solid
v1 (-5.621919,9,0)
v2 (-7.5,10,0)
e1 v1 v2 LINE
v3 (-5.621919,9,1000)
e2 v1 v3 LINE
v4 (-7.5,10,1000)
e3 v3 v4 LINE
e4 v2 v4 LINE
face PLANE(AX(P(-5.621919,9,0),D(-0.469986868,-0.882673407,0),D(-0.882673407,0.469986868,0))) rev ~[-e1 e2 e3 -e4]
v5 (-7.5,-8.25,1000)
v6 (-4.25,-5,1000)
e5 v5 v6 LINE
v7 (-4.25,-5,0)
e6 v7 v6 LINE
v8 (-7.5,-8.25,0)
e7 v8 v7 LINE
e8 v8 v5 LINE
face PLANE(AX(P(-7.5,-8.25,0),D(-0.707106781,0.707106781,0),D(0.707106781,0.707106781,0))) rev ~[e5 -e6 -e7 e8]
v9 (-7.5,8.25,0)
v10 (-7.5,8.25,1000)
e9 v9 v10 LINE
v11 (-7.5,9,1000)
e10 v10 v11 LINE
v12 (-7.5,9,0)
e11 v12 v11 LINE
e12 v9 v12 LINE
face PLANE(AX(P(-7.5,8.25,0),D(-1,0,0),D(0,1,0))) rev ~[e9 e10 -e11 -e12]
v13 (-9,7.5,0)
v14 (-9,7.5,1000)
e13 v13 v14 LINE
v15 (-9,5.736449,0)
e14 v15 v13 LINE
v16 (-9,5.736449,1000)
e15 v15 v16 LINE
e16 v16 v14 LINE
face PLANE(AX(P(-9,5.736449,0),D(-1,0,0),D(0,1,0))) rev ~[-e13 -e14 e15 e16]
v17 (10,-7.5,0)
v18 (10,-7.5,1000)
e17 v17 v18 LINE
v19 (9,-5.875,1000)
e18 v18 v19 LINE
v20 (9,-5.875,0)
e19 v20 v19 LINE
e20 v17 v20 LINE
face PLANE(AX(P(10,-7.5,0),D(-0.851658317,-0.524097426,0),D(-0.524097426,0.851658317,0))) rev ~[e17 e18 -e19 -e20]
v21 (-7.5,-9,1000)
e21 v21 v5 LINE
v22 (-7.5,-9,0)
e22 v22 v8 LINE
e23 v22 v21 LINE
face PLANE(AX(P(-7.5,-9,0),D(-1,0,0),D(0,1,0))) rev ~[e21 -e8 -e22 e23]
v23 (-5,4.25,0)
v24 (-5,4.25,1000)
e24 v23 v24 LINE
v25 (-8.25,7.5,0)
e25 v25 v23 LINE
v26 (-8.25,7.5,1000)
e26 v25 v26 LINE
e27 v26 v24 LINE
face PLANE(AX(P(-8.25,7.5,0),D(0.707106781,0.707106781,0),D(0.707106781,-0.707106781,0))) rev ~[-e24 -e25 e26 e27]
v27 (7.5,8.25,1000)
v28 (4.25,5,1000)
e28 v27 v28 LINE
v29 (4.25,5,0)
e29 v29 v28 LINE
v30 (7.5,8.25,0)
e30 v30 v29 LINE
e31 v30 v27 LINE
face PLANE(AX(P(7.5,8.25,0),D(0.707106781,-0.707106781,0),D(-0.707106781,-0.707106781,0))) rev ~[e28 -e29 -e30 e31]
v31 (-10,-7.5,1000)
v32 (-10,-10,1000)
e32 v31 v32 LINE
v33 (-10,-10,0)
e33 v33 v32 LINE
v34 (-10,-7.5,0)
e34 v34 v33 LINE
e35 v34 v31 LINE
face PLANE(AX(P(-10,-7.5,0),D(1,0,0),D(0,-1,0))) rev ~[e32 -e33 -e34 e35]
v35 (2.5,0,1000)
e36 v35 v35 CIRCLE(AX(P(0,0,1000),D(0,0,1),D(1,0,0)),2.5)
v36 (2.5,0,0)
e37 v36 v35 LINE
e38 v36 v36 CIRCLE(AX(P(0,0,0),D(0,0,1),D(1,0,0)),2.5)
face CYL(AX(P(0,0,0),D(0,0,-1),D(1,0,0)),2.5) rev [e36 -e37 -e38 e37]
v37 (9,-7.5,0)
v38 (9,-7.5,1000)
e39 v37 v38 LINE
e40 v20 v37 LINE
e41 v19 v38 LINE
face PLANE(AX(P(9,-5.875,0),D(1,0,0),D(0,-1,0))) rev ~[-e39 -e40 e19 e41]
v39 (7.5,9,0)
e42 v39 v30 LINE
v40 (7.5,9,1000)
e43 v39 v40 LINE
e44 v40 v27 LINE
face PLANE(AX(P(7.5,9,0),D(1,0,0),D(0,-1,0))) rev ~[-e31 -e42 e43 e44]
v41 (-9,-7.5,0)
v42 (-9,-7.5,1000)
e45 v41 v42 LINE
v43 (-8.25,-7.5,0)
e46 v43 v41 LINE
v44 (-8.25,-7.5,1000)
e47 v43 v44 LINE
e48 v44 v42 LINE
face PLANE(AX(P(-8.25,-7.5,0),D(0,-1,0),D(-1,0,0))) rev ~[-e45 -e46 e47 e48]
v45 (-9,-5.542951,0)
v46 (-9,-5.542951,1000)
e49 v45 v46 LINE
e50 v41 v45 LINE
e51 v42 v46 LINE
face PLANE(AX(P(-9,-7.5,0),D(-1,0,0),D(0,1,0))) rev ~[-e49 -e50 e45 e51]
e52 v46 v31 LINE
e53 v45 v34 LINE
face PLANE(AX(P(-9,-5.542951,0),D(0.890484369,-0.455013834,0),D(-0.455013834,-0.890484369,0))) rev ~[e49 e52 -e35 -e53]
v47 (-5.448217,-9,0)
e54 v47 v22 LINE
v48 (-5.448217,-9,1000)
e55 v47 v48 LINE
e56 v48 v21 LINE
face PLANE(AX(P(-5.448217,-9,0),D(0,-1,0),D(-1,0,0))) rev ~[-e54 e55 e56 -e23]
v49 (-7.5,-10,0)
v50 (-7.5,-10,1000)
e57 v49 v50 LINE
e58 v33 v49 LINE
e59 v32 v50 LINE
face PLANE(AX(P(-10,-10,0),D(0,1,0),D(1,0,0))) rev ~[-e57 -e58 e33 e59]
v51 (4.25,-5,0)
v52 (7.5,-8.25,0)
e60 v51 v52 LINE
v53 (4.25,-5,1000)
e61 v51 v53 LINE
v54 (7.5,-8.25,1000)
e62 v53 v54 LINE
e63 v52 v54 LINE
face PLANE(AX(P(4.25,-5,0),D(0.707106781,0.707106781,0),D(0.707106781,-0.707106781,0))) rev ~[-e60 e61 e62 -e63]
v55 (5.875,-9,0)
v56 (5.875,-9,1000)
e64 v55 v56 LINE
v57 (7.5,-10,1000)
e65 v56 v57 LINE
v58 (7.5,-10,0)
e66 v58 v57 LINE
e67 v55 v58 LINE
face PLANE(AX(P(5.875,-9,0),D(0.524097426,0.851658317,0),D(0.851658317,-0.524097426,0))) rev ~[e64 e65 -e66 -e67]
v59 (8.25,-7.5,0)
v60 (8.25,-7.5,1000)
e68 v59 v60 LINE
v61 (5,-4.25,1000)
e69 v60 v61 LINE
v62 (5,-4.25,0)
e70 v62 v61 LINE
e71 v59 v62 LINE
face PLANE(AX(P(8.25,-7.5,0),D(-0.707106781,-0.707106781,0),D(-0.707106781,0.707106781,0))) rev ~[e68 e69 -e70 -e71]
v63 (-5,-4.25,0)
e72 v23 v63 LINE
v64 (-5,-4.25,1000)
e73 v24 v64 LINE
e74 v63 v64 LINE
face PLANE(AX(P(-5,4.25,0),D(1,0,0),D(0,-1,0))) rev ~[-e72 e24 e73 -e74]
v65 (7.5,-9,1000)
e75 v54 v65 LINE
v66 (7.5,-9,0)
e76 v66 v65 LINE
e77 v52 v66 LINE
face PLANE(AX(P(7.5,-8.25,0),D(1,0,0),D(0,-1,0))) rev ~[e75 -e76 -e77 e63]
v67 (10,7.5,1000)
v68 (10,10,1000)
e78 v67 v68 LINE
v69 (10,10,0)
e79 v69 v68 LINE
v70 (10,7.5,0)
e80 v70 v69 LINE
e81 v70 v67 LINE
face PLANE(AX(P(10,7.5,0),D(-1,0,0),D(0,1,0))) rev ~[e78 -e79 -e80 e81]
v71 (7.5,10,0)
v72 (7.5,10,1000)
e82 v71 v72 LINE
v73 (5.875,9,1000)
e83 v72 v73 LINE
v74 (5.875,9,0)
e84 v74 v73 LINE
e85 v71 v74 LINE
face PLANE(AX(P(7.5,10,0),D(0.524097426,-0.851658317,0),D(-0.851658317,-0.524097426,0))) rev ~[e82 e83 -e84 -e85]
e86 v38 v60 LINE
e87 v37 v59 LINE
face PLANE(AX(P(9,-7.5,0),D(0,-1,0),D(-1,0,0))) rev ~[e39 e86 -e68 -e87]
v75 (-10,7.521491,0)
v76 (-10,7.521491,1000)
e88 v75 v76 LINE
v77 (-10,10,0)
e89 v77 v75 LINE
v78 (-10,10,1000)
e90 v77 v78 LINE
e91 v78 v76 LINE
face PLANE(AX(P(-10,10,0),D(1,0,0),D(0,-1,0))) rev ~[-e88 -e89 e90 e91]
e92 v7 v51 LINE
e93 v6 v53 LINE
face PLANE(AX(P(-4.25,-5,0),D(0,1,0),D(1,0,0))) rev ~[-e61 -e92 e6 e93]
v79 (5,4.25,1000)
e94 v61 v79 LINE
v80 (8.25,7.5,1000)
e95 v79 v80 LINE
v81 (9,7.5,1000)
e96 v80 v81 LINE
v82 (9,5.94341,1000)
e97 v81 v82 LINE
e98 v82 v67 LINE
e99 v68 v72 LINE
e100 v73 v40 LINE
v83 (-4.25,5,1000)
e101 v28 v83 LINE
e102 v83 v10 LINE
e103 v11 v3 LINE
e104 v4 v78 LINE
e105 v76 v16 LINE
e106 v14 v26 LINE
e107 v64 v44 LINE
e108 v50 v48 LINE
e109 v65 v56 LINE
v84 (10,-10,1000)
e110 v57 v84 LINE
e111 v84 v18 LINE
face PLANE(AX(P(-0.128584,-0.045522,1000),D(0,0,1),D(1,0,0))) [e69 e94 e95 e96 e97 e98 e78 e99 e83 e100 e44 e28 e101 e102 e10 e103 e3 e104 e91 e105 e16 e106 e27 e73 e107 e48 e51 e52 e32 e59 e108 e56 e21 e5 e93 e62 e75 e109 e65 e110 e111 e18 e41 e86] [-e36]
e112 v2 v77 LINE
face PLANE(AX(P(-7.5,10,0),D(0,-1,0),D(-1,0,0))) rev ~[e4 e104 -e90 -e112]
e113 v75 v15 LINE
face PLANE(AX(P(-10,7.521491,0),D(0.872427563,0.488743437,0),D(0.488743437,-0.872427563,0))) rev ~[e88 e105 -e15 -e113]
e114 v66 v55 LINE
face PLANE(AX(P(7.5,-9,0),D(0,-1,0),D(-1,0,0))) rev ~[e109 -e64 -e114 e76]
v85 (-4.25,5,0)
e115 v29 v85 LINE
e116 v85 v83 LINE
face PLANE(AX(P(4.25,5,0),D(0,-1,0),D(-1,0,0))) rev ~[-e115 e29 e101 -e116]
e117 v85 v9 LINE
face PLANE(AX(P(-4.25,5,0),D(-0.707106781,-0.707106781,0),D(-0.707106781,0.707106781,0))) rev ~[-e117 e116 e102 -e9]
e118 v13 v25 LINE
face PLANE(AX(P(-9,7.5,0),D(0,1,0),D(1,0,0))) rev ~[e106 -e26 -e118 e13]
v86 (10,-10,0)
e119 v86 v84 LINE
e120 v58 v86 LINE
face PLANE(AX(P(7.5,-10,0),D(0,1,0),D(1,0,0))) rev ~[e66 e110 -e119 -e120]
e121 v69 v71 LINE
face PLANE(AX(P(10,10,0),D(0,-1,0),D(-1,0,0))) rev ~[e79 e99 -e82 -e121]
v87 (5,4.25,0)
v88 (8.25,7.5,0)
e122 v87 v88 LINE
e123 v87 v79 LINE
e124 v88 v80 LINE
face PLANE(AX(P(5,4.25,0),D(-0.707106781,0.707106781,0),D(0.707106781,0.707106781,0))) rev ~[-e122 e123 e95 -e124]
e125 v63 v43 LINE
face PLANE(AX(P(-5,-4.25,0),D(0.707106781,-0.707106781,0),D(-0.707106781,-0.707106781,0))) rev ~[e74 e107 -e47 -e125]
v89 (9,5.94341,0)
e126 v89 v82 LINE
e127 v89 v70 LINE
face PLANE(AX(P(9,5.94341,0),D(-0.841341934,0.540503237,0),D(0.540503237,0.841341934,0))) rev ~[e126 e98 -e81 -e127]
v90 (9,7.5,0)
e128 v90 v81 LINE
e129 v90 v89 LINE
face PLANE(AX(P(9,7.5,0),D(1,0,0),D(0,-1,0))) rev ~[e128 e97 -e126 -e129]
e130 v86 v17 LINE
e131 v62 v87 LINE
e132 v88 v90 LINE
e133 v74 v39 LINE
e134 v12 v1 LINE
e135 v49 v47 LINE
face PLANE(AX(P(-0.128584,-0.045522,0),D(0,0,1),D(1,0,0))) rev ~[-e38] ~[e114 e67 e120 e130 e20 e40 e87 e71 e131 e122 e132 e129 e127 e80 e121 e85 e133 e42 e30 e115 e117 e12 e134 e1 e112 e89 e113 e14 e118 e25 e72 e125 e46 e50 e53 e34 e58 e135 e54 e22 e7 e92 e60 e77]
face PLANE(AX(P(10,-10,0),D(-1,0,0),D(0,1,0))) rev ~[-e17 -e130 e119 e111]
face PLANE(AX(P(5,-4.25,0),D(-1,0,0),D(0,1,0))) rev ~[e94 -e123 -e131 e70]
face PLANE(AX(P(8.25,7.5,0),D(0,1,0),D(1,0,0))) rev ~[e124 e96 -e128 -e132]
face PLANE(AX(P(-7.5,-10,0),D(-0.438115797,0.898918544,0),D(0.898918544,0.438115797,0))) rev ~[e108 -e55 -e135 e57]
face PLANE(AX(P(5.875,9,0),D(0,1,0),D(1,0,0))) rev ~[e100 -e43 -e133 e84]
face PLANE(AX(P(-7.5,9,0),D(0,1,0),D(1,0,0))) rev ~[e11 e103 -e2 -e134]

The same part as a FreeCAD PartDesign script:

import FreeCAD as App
import Part
import Sketcher
from FreeCAD import Vector

doc = App.newDocument("Part")
body = doc.addObject("PartDesign::Body", "Body")

# Sketch on XY plane
sketch1 = doc.addObject("Sketcher::SketchObject", "Sketch")
body.addObject(sketch1)
sketch1.AttachmentSupport = (doc.XY_Plane, [""])
sketch1.MapMode = "FlatFace"
sketch1.addGeometry(Part.LineSegment(Vector(7.5, 8.2, 0), Vector(4.2, 5, 0)), False)
sketch1.addGeometry(Part.LineSegment(Vector(4.2, 5, 0), Vector(-4.2, 5, 0)), False)
sketch1.addGeometry(Part.LineSegment(Vector(-4.2, 5, 0), Vector(-7.5, 8.2, 0)), False)
sketch1.addGeometry(Part.LineSegment(Vector(-7.5, 8.2, 0), Vector(-7.5, 9, 0)), False)
sketch1.addGeometry(Part.LineSegment(Vector(-7.5, 9, 0), Vector(-5.6, 9, 0)), False)
sketch1.addGeometry(Part.LineSegment(Vector(-5.6, 9, 0), Vector(-7.5, 10, 0)), False)
sketch1.addGeometry(Part.LineSegment(Vector(-7.5, 10, 0), Vector(-10, 10, 0)), False)
sketch1.addGeometry(Part.LineSegment(Vector(-10, 10, 0), Vector(-10, 7.5, 0)), False)
sketch1.addGeometry(Part.LineSegment(Vector(-10, 7.5, 0), Vector(-9, 5.7, 0)), False)
sketch1.addGeometry(Part.LineSegment(Vector(-9, 5.7, 0), Vector(-9, 7.5, 0)), False)
sketch1.addGeometry(Part.LineSegment(Vector(-9, 7.5, 0), Vector(-8.2, 7.5, 0)), False)
sketch1.addGeometry(Part.LineSegment(Vector(-8.2, 7.5, 0), Vector(-5, 4.2, 0)), False)
sketch1.addGeometry(Part.LineSegment(Vector(-5, 4.2, 0), Vector(-5, -4.2, 0)), False)
sketch1.addGeometry(Part.LineSegment(Vector(-5, -4.2, 0), Vector(-8.2, -7.5, 0)), False)
sketch1.addGeometry(Part.LineSegment(Vector(-8.2, -7.5, 0), Vector(-9, -7.5, 0)), False)
sketch1.addGeometry(Part.LineSegment(Vector(-9, -7.5, 0), Vector(-9, -5.5, 0)), False)
sketch1.addGeometry(Part.LineSegment(Vector(-9, -5.5, 0), Vector(-10, -7.5, 0)), False)
sketch1.addGeometry(Part.LineSegment(Vector(-10, -7.5, 0), Vector(-10, -10, 0)), False)
sketch1.addGeometry(Part.LineSegment(Vector(-10, -10, 0), Vector(-7.5, -10, 0)), False)
sketch1.addGeometry(Part.LineSegment(Vector(-7.5, -10, 0), Vector(-5.4, -9, 0)), False)
sketch1.addGeometry(Part.LineSegment(Vector(-5.4, -9, 0), Vector(-7.5, -9, 0)), False)
sketch1.addGeometry(Part.LineSegment(Vector(-7.5, -9, 0), Vector(-7.5, -8.2, 0)), False)
sketch1.addGeometry(Part.LineSegment(Vector(-7.5, -8.2, 0), Vector(-4.2, -5, 0)), False)
sketch1.addGeometry(Part.LineSegment(Vector(-4.2, -5, 0), Vector(4.2, -5, 0)), False)
sketch1.addGeometry(Part.LineSegment(Vector(4.2, -5, 0), Vector(7.5, -8.2, 0)), False)
sketch1.addGeometry(Part.LineSegment(Vector(7.5, -8.2, 0), Vector(7.5, -9, 0)), False)
sketch1.addGeometry(Part.LineSegment(Vector(7.5, -9, 0), Vector(5.9, -9, 0)), False)
sketch1.addGeometry(Part.LineSegment(Vector(5.9, -9, 0), Vector(7.5, -10, 0)), False)
sketch1.addGeometry(Part.LineSegment(Vector(7.5, -10, 0), Vector(10, -10, 0)), False)
sketch1.addGeometry(Part.LineSegment(Vector(10, -10, 0), Vector(10, -7.5, 0)), False)
sketch1.addGeometry(Part.LineSegment(Vector(10, -7.5, 0), Vector(9, -5.9, 0)), False)
sketch1.addGeometry(Part.LineSegment(Vector(9, -5.9, 0), Vector(9, -7.5, 0)), False)
sketch1.addGeometry(Part.LineSegment(Vector(9, -7.5, 0), Vector(8.2, -7.5, 0)), False)
sketch1.addGeometry(Part.LineSegment(Vector(8.2, -7.5, 0), Vector(5, -4.2, 0)), False)
sketch1.addGeometry(Part.LineSegment(Vector(5, -4.2, 0), Vector(5, 4.2, 0)), False)
sketch1.addGeometry(Part.LineSegment(Vector(5, 4.2, 0), Vector(8.2, 7.5, 0)), False)
sketch1.addGeometry(Part.LineSegment(Vector(8.2, 7.5, 0), Vector(9, 7.5, 0)), False)
sketch1.addGeometry(Part.LineSegment(Vector(9, 7.5, 0), Vector(9, 5.9, 0)), False)
sketch1.addGeometry(Part.LineSegment(Vector(9, 5.9, 0), Vector(10, 7.5, 0)), False)
sketch1.addGeometry(Part.LineSegment(Vector(10, 7.5, 0), Vector(10, 10, 0)), False)
sketch1.addGeometry(Part.LineSegment(Vector(10, 10, 0), Vector(7.5, 10, 0)), False)
sketch1.addGeometry(Part.LineSegment(Vector(7.5, 10, 0), Vector(5.9, 9, 0)), False)
sketch1.addGeometry(Part.LineSegment(Vector(5.9, 9, 0), Vector(7.5, 9, 0)), False)
sketch1.addGeometry(Part.LineSegment(Vector(7.5, 9, 0), Vector(7.5, 8.2, 0)), False)
sketch1.addGeometry(Part.Circle(Vector(0, 0, 0), Vector(0, 0, 1), 2.5), False)
sketch1.addConstraint(Sketcher.Constraint("Coincident", 0, 2, 1, 1))
sketch1.addConstraint(Sketcher.Constraint("Coincident", 1, 2, 2, 1))
sketch1.addConstraint(Sketcher.Constraint("Coincident", 2, 2, 3, 1))
sketch1.addConstraint(Sketcher.Constraint("Coincident", 3, 2, 4, 1))
sketch1.addConstraint(Sketcher.Constraint("Coincident", 4, 2, 5, 1))
sketch1.addConstraint(Sketcher.Constraint("Coincident", 5, 2, 6, 1))
sketch1.addConstraint(Sketcher.Constraint("Coincident", 6, 2, 7, 1))
sketch1.addConstraint(Sketcher.Constraint("Coincident", 7, 2, 8, 1))
sketch1.addConstraint(Sketcher.Constraint("Coincident", 8, 2, 9, 1))
sketch1.addConstraint(Sketcher.Constraint("Coincident", 9, 2, 10, 1))
sketch1.addConstraint(Sketcher.Constraint("Coincident", 10, 2, 11, 1))
sketch1.addConstraint(Sketcher.Constraint("Coincident", 11, 2, 12, 1))
sketch1.addConstraint(Sketcher.Constraint("Coincident", 12, 2, 13, 1))
sketch1.addConstraint(Sketcher.Constraint("Coincident", 13, 2, 14, 1))
sketch1.addConstraint(Sketcher.Constraint("Coincident", 14, 2, 15, 1))
sketch1.addConstraint(Sketcher.Constraint("Coincident", 15, 2, 16, 1))
sketch1.addConstraint(Sketcher.Constraint("Coincident", 16, 2, 17, 1))
sketch1.addConstraint(Sketcher.Constraint("Coincident", 17, 2, 18, 1))
sketch1.addConstraint(Sketcher.Constraint("Coincident", 18, 2, 19, 1))
sketch1.addConstraint(Sketcher.Constraint("Coincident", 19, 2, 20, 1))
sketch1.addConstraint(Sketcher.Constraint("Coincident", 20, 2, 21, 1))
sketch1.addConstraint(Sketcher.Constraint("Coincident", 21, 2, 22, 1))
sketch1.addConstraint(Sketcher.Constraint("Coincident", 22, 2, 23, 1))
sketch1.addConstraint(Sketcher.Constraint("Coincident", 23, 2, 24, 1))
sketch1.addConstraint(Sketcher.Constraint("Coincident", 24, 2, 25, 1))
sketch1.addConstraint(Sketcher.Constraint("Coincident", 25, 2, 26, 1))
sketch1.addConstraint(Sketcher.Constraint("Coincident", 26, 2, 27, 1))
sketch1.addConstraint(Sketcher.Constraint("Coincident", 27, 2, 28, 1))
sketch1.addConstraint(Sketcher.Constraint("Coincident", 28, 2, 29, 1))
sketch1.addConstraint(Sketcher.Constraint("Coincident", 29, 2, 30, 1))
sketch1.addConstraint(Sketcher.Constraint("Coincident", 30, 2, 31, 1))
sketch1.addConstraint(Sketcher.Constraint("Coincident", 31, 2, 32, 1))
sketch1.addConstraint(Sketcher.Constraint("Coincident", 32, 2, 33, 1))
sketch1.addConstraint(Sketcher.Constraint("Coincident", 33, 2, 34, 1))
sketch1.addConstraint(Sketcher.Constraint("Coincident", 34, 2, 35, 1))
sketch1.addConstraint(Sketcher.Constraint("Coincident", 35, 2, 36, 1))
sketch1.addConstraint(Sketcher.Constraint("Coincident", 36, 2, 37, 1))
sketch1.addConstraint(Sketcher.Constraint("Coincident", 37, 2, 38, 1))
sketch1.addConstraint(Sketcher.Constraint("Coincident", 38, 2, 39, 1))
sketch1.addConstraint(Sketcher.Constraint("Coincident", 39, 2, 40, 1))
sketch1.addConstraint(Sketcher.Constraint("Coincident", 40, 2, 41, 1))
sketch1.addConstraint(Sketcher.Constraint("Coincident", 41, 2, 42, 1))
sketch1.addConstraint(Sketcher.Constraint("Coincident", 42, 2, 43, 1))
sketch1.addConstraint(Sketcher.Constraint("Coincident", 43, 2, 0, 1))
sketch1.addConstraint(Sketcher.Constraint("Horizontal", 1))
sketch1.addConstraint(Sketcher.Constraint("Vertical", 3))
sketch1.addConstraint(Sketcher.Constraint("Horizontal", 4))
sketch1.addConstraint(Sketcher.Constraint("Horizontal", 6))
sketch1.addConstraint(Sketcher.Constraint("Vertical", 7))
sketch1.addConstraint(Sketcher.Constraint("Vertical", 9))
sketch1.addConstraint(Sketcher.Constraint("Horizontal", 10))
sketch1.addConstraint(Sketcher.Constraint("Vertical", 12))
sketch1.addConstraint(Sketcher.Constraint("Horizontal", 14))
sketch1.addConstraint(Sketcher.Constraint("Vertical", 15))
sketch1.addConstraint(Sketcher.Constraint("Vertical", 17))
sketch1.addConstraint(Sketcher.Constraint("Horizontal", 18))
sketch1.addConstraint(Sketcher.Constraint("Horizontal", 20))
sketch1.addConstraint(Sketcher.Constraint("Vertical", 21))
sketch1.addConstraint(Sketcher.Constraint("Horizontal", 23))
sketch1.addConstraint(Sketcher.Constraint("Vertical", 25))
sketch1.addConstraint(Sketcher.Constraint("Horizontal", 26))
sketch1.addConstraint(Sketcher.Constraint("Horizontal", 28))
sketch1.addConstraint(Sketcher.Constraint("Vertical", 29))
sketch1.addConstraint(Sketcher.Constraint("Vertical", 31))
sketch1.addConstraint(Sketcher.Constraint("Horizontal", 32))
sketch1.addConstraint(Sketcher.Constraint("Vertical", 34))
sketch1.addConstraint(Sketcher.Constraint("Horizontal", 36))
sketch1.addConstraint(Sketcher.Constraint("Vertical", 37))
sketch1.addConstraint(Sketcher.Constraint("Vertical", 39))
sketch1.addConstraint(Sketcher.Constraint("Horizontal", 40))
sketch1.addConstraint(Sketcher.Constraint("Horizontal", 42))
sketch1.addConstraint(Sketcher.Constraint("Vertical", 43))
sketch1.addConstraint(Sketcher.Constraint("Coincident", 44, 3, -1, 1))
sketch1.addConstraint(Sketcher.Constraint("Symmetric", 0, 2, 22, 2, -1, 1))
sketch1.addConstraint(Sketcher.Constraint("Symmetric", 2, 2, 24, 2, -1, 1))
sketch1.addConstraint(Sketcher.Constraint("Symmetric", 5, 2, 27, 2, -1, 1))
sketch1.addConstraint(Sketcher.Constraint("Symmetric", 9, 2, 31, 2, -1, 1))
sketch1.addConstraint(Sketcher.Constraint("Symmetric", 11, 2, 33, 2, -1, 1))
sketch1.addConstraint(Sketcher.Constraint("Symmetric", 13, 2, 35, 2, -1, 1))
sketch1.addConstraint(Sketcher.Constraint("Symmetric", 16, 2, 38, 2, -1, 1))
sketch1.addConstraint(Sketcher.Constraint("Symmetric", 18, 2, 40, 2, -1, 1))
sketch1.addConstraint(Sketcher.Constraint("Symmetric", 20, 2, 42, 2, -1, 1))
sketch1.addConstraint(Sketcher.Constraint("Symmetric", 21, 2, 24, 2, -2))
sketch1.addConstraint(Sketcher.Constraint("Symmetric", 18, 2, 27, 2, -2))
sketch1.addConstraint(Sketcher.Constraint("Symmetric", 16, 2, 29, 2, -2))
sketch1.addConstraint(Sketcher.Constraint("Symmetric", 14, 2, 31, 2, -2))
sketch1.addConstraint(Sketcher.Constraint("Symmetric", 26, 2, 41, 2, -1))
sketch1.addConstraint(Sketcher.Constraint("Perpendicular", 0, 2))
sketch1.addConstraint(Sketcher.Constraint("Parallel", 2, 11))
sketch1.addConstraint(Sketcher.Constraint("Perpendicular", 11, 13))
sketch1.addConstraint(Sketcher.Constraint("Parallel", 13, 22))
sketch1.addConstraint(Sketcher.Constraint("Perpendicular", 22, 24))
sketch1.addConstraint(Sketcher.Constraint("Parallel", 24, 33))
sketch1.addConstraint(Sketcher.Constraint("Perpendicular", 33, 35))
sketch1.addConstraint(Sketcher.Constraint("Perpendicular", 30, 41))
sketch1.addConstraint(Sketcher.Constraint("Horizontal", 14, 2, 16, 2))
sketch1.addConstraint(Sketcher.Constraint("Horizontal", 12, 2, 33, 2))
sketch1.addConstraint(Sketcher.Constraint("Horizontal", 4, 2, 41, 2))
sketch1.addConstraint(Sketcher.Constraint("Vertical", 3, 2, 5, 2))
sketch1.addConstraint(Sketcher.Constraint("Vertical", 10, 2, 13, 2))
sketch1.addConstraint(Sketcher.Constraint("Vertical", 7, 2, 16, 2))
sketch1.addConstraint(Sketcher.Constraint("Vertical", 31, 2, 36, 2))
sketch1.addConstraint(Sketcher.Constraint("Equal", 36, 3))
sketch1.addConstraint(Sketcher.Constraint("Equal", 23, 12))
sketch1.addConstraint(Sketcher.Constraint("Equal", 40, 17))
sketch1.addConstraint(Sketcher.Constraint("Equal", 42, 31))
sketch1.addConstraint(Sketcher.Constraint("Equal", 2, 11))
sketch1.addConstraint(Sketcher.Constraint("Diameter", 44, 5.0))
sketch1.addConstraint(Sketcher.Constraint("DistanceX", 1, 2, 1, 1, 8.5))
sketch1.addConstraint(Sketcher.Constraint("DistanceX", 6, 2, 6, 1, 2.5))
sketch1.addConstraint(Sketcher.Constraint("DistanceY", -1, 1, 0, 2, 5.0))
sketch1.addConstraint(Sketcher.Constraint("DistanceY", -1, 1, 3, 2, 9.0))
sketch1.addConstraint(Sketcher.Constraint("DistanceY", -1, 1, 5, 2, 10.0))
sketch1.addConstraint(Sketcher.Constraint("DistanceX", 26, 2, 26, 1, 1.625))
sketch1.addConstraint(Sketcher.Constraint("Distance", 19, 2.282502))
sketch1.addConstraint(Sketcher.Constraint("DistanceX", 4, 1, 4, 2, 1.878081))
sketch1.addConstraint(Sketcher.Constraint("DistanceY", 7, 2, 7, 1, 2.478509))
sketch1.addConstraint(Sketcher.Constraint("DistanceY", 9, 1, 9, 2, 1.763551))
sketch1.addConstraint(Sketcher.Constraint("DistanceY", 15, 1, 15, 2, 1.957049))
sketch1.addConstraint(Sketcher.Constraint("DistanceY", 37, 2, 37, 1, 1.55659))
pad1 = doc.addObject("PartDesign::Pad", "Pad")
body.addObject(pad1)
pad1.Profile = sketch1
pad1.Length = 1000

doc.recompute()
